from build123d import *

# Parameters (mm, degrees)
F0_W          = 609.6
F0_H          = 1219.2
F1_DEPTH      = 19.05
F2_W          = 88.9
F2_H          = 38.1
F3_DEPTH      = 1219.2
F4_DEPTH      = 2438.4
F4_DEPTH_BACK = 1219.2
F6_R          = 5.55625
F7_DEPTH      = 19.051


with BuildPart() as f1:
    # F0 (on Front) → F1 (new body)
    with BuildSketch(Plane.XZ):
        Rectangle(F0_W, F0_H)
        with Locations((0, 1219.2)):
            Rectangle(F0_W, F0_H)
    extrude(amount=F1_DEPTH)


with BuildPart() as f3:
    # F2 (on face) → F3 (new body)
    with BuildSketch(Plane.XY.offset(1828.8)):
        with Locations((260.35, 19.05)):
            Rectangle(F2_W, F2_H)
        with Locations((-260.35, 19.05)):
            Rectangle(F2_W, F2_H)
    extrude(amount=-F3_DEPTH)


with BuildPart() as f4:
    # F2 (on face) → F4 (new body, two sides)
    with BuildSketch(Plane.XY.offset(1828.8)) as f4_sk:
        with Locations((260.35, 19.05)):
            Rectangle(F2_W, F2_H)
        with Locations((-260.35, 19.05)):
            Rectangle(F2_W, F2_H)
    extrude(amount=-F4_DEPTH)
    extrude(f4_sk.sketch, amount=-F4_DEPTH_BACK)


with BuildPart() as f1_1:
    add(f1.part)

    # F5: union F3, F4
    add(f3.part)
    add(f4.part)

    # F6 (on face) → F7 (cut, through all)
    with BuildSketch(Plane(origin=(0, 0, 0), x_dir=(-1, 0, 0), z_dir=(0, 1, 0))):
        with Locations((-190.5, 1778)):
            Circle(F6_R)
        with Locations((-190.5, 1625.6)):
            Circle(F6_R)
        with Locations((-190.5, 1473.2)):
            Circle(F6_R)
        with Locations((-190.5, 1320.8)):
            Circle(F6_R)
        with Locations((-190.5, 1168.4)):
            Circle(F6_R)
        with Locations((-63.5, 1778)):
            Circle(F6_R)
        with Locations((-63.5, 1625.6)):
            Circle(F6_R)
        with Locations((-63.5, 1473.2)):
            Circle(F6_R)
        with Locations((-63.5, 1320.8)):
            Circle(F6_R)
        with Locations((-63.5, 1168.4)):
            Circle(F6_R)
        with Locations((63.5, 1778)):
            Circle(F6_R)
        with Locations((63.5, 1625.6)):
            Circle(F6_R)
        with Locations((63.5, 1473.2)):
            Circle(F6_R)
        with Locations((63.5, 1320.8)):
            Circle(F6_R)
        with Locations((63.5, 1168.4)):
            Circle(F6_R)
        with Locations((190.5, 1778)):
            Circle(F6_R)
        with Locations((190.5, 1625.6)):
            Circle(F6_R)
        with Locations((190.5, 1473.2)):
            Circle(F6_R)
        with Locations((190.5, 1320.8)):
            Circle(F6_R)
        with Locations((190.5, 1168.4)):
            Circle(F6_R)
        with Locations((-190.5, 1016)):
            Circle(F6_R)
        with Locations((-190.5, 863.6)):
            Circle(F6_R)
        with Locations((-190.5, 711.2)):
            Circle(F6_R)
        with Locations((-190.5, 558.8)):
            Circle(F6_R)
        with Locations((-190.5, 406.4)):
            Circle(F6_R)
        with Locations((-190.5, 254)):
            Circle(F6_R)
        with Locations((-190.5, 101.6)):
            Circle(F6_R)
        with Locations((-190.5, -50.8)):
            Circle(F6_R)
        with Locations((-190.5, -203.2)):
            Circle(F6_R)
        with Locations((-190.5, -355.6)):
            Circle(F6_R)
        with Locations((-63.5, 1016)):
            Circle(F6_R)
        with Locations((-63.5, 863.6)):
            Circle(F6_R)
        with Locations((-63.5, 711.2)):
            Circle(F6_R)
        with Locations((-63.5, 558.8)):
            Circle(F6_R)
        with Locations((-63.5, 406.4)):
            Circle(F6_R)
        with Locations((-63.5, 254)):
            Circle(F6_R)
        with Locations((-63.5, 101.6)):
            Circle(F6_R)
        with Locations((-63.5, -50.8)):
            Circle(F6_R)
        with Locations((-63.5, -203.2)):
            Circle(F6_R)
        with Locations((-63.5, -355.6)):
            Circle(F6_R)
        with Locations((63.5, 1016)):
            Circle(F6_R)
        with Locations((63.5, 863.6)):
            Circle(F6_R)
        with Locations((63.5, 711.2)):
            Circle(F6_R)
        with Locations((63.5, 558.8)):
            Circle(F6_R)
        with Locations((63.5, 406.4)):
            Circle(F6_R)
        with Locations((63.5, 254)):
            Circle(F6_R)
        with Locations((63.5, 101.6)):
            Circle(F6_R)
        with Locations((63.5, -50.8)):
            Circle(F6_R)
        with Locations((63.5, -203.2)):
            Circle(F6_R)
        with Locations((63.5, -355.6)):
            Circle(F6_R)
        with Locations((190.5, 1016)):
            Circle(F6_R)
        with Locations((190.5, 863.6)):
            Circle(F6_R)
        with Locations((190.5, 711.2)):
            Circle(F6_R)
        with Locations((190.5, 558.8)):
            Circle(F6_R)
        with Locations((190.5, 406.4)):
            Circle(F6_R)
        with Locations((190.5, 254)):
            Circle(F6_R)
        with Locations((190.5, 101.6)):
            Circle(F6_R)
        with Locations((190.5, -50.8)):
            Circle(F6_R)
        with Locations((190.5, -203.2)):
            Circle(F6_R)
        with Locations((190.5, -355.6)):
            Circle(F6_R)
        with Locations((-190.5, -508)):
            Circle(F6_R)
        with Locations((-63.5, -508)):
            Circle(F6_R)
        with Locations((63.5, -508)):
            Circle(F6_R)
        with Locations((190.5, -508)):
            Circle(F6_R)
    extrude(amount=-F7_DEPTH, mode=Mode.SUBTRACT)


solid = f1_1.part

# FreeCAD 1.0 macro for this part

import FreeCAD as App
import Part
import Sketcher

V = App.Vector
Q = App.Units.Quantity

doc = App.newDocument("Part")
body = doc.addObject("PartDesign::Body", "Body")

# Sketch on XZ plane
sketch1 = doc.addObject("Sketcher::SketchObject", "Sketch")
body.addObject(sketch1)
sketch1.AttachmentSupport = (doc.XZ_Plane, [""])
sketch1.MapMode = "FlatFace"
sketch1.addGeometry([
    Part.LineSegment(V(-305, -610, 0), V(305, -610, 0)),
    Part.LineSegment(V(305, -610, 0), V(305, 1829, 0)),
    Part.LineSegment(V(305, 1829, 0), V(-305, 1829, 0)),
    Part.LineSegment(V(-305, 1829, 0), V(-305, -610, 0)),
], False)
sketch1.addConstraint([
    Sketcher.Constraint("Coincident", 0, 2, 1, 1),
    Sketcher.Constraint("Coincident", 1, 2, 2, 1),
    Sketcher.Constraint("Coincident", 2, 2, 3, 1),
    Sketcher.Constraint("Coincident", 3, 2, 0, 1),
    Sketcher.Constraint("Horizontal", 0),
    Sketcher.Constraint("Vertical", 1),
    Sketcher.Constraint("Horizontal", 2),
    Sketcher.Constraint("Vertical", 3),
    Sketcher.Constraint("DistanceX", 0, 1, 0, 2, Q("24 in")),
    Sketcher.Constraint("DistanceY", 1, 1, 1, 2, Q("96 in")),
    Sketcher.Constraint("DistanceX", -1, 1, 0, 2, Q("12 in")),
    Sketcher.Constraint("DistanceY", 0, 2, -1, 1, Q("24 in")),
])
pad1 = doc.addObject("PartDesign::Pad", "Pad")
body.addObject(pad1)
pad1.Profile = sketch1
pad1.Length = Q("0.75 in")
body2 = doc.addObject("PartDesign::Body", "Body001")
body2.AllowCompound = True

# Sketch on XY plane
sketch2 = doc.addObject("Sketcher::SketchObject", "Sketch001")
body2.addObject(sketch2)
sketch2.AttachmentSupport = (doc.getObject("XY_Plane001"), [""])
sketch2.MapMode = "FlatFace"
sketch2.AttachmentOffset = App.Placement(V(0, 0, 72 * 25.4), App.Rotation())
sketch2.addGeometry([
    Part.LineSegment(V(216, 38, 0), V(216, 0, 0)),  # 0
    Part.LineSegment(V(216, 0, 0), V(305, 0, 0)),  # 1
    Part.LineSegment(V(305, 0, 0), V(305, 38, 0)),  # 2
    Part.LineSegment(V(305, 38, 0), V(216, 38, 0)),  # 3
    Part.LineSegment(V(-305, 38, 0), V(-305, 0, 0)),  # 4
    Part.LineSegment(V(-305, 0, 0), V(-216, 0, 0)),  # 5
    Part.LineSegment(V(-216, 0, 0), V(-216, 38, 0)),  # 6
    Part.LineSegment(V(-216, 38, 0), V(-305, 38, 0)),  # 7
], False)
sketch2.addConstraint([
    Sketcher.Constraint("Coincident", 0, 2, 1, 1),
    Sketcher.Constraint("Coincident", 1, 2, 2, 1),
    Sketcher.Constraint("Coincident", 2, 2, 3, 1),
    Sketcher.Constraint("Coincident", 3, 2, 0, 1),
    Sketcher.Constraint("Coincident", 4, 2, 5, 1),
    Sketcher.Constraint("Coincident", 5, 2, 6, 1),
    Sketcher.Constraint("Coincident", 6, 2, 7, 1),
    Sketcher.Constraint("Coincident", 7, 2, 4, 1),
    Sketcher.Constraint("Vertical", 0),
    Sketcher.Constraint("Horizontal", 1),
    Sketcher.Constraint("Vertical", 2),
    Sketcher.Constraint("Horizontal", 3),
    Sketcher.Constraint("Vertical", 4),
    Sketcher.Constraint("Horizontal", 5),
    Sketcher.Constraint("Vertical", 6),
    Sketcher.Constraint("Horizontal", 7),
    Sketcher.Constraint("Symmetric", 1, 2, 4, 2, -1, 1),
    Sketcher.Constraint("Symmetric", 0, 2, 5, 2, -2),
    Sketcher.Constraint("Horizontal", 3, 2, 6, 2),
    Sketcher.Constraint("DistanceX", 1, 1, 1, 2, Q("3.5 in")),
    Sketcher.Constraint("DistanceY", 0, 2, 0, 1, Q("1.5 in")),
    Sketcher.Constraint("DistanceX", -1, 1, 1, 2, Q("12 in")),
])
pad2 = doc.addObject("PartDesign::Pad", "Pad001")
body2.addObject(pad2)
pad2.Profile = sketch2
pad2.Length = Q("48 in")
pad2.Reversed = True
body3 = doc.addObject("PartDesign::Body", "Body002")
body3.AllowCompound = True

# Sketch on XY plane
sketch3 = doc.addObject("Sketcher::SketchObject", "Sketch002")
body3.addObject(sketch3)
sketch3.AttachmentSupport = (doc.getObject("XY_Plane002"), [""])
sketch3.MapMode = "FlatFace"
sketch3.AttachmentOffset = App.Placement(V(0, 0, 72 * 25.4), App.Rotation())
sketch3.addGeometry([
    Part.LineSegment(V(216, 38, 0), V(216, 0, 0)),  # 0
    Part.LineSegment(V(216, 0, 0), V(305, 0, 0)),  # 1
    Part.LineSegment(V(305, 0, 0), V(305, 38, 0)),  # 2
    Part.LineSegment(V(305, 38, 0), V(216, 38, 0)),  # 3
    Part.LineSegment(V(-305, 38, 0), V(-305, 0, 0)),  # 4
    Part.LineSegment(V(-305, 0, 0), V(-216, 0, 0)),  # 5
    Part.LineSegment(V(-216, 0, 0), V(-216, 38, 0)),  # 6
    Part.LineSegment(V(-216, 38, 0), V(-305, 38, 0)),  # 7
], False)
sketch3.addConstraint([
    Sketcher.Constraint("Coincident", 0, 2, 1, 1),
    Sketcher.Constraint("Coincident", 1, 2, 2, 1),
    Sketcher.Constraint("Coincident", 2, 2, 3, 1),
    Sketcher.Constraint("Coincident", 3, 2, 0, 1),
    Sketcher.Constraint("Coincident", 4, 2, 5, 1),
    Sketcher.Constraint("Coincident", 5, 2, 6, 1),
    Sketcher.Constraint("Coincident", 6, 2, 7, 1),
    Sketcher.Constraint("Coincident", 7, 2, 4, 1),
    Sketcher.Constraint("Vertical", 0),
    Sketcher.Constraint("Horizontal", 1),
    Sketcher.Constraint("Vertical", 2),
    Sketcher.Constraint("Horizontal", 3),
    Sketcher.Constraint("Vertical", 4),
    Sketcher.Constraint("Horizontal", 5),
    Sketcher.Constraint("Vertical", 6),
    Sketcher.Constraint("Horizontal", 7),
    Sketcher.Constraint("Symmetric", 1, 2, 4, 2, -1, 1),
    Sketcher.Constraint("Symmetric", 0, 2, 5, 2, -2),
    Sketcher.Constraint("Horizontal", 3, 2, 6, 2),
    Sketcher.Constraint("DistanceX", 1, 1, 1, 2, Q("3.5 in")),
    Sketcher.Constraint("DistanceY", 0, 2, 0, 1, Q("1.5 in")),
    Sketcher.Constraint("DistanceX", -1, 1, 1, 2, Q("12 in")),
])
pad3 = doc.addObject("PartDesign::Pad", "Pad002")
body3.addObject(pad3)
pad3.Profile = sketch3
pad3.Length = Q("96 in")
pad3.Reversed = True
pad4 = doc.addObject("PartDesign::Pad", "Pad003")
body3.addObject(pad4)
pad4.Profile = sketch3
pad4.Length = Q("48 in")
pad4.Reversed = True
doc.recompute()

boolean = doc.addObject("PartDesign::Boolean", "Boolean")
body.addObject(boolean)
boolean.Type = "Fuse"
boolean.addObjects([body2])
doc.recompute()

boolean2 = doc.addObject("PartDesign::Boolean", "Boolean001")
body.addObject(boolean2)
boolean2.Type = "Fuse"
boolean2.addObjects([body3])

# Sketch on XZ plane
sketch4 = doc.addObject("Sketcher::SketchObject", "Sketch003")
body.addObject(sketch4)
sketch4.AttachmentSupport = (doc.XZ_Plane, [""])
sketch4.MapMode = "FlatFace"
sketch4.addGeometry([
    Part.Circle(V(190, 1778, 0), V(0, 0, 1), 6),  # 0
    Part.Circle(V(190, 1626, 0), V(0, 0, 1), 6),  # 1
    Part.Circle(V(190, 1473, 0), V(0, 0, 1), 6),  # 2
    Part.Circle(V(190, 1321, 0), V(0, 0, 1), 6),  # 3
    Part.Circle(V(190, 1168, 0), V(0, 0, 1), 6),  # 4
    Part.Circle(V(64, 1778, 0), V(0, 0, 1), 6),  # 5
    Part.Circle(V(64, 1626, 0), V(0, 0, 1), 6),  # 6
    Part.Circle(V(64, 1473, 0), V(0, 0, 1), 6),  # 7
    Part.Circle(V(64, 1321, 0), V(0, 0, 1), 6),  # 8
    Part.Circle(V(64, 1168, 0), V(0, 0, 1), 6),  # 9
    Part.Circle(V(-64, 1778, 0), V(0, 0, 1), 6),  # 10
    Part.Circle(V(-64, 1626, 0), V(0, 0, 1), 6),  # 11
    Part.Circle(V(-64, 1473, 0), V(0, 0, 1), 6),  # 12
    Part.Circle(V(-64, 1321, 0), V(0, 0, 1), 6),  # 13
    Part.Circle(V(-64, 1168, 0), V(0, 0, 1), 6),  # 14
    Part.Circle(V(-190, 1778, 0), V(0, 0, 1), 6),  # 15
    Part.Circle(V(-190, 1626, 0), V(0, 0, 1), 6),  # 16
    Part.Circle(V(-190, 1473, 0), V(0, 0, 1), 6),  # 17
    Part.Circle(V(-190, 1321, 0), V(0, 0, 1), 6),  # 18
    Part.Circle(V(-190, 1168, 0), V(0, 0, 1), 6),  # 19
    Part.Circle(V(190, 1016, 0), V(0, 0, 1), 6),  # 20
    Part.Circle(V(190, 864, 0), V(0, 0, 1), 6),  # 21
    Part.Circle(V(190, 711, 0), V(0, 0, 1), 6),  # 22
    Part.Circle(V(190, 559, 0), V(0, 0, 1), 6),  # 23
    Part.Circle(V(190, 406, 0), V(0, 0, 1), 6),  # 24
    Part.Circle(V(190, 254, 0), V(0, 0, 1), 6),  # 25
    Part.Circle(V(190, 102, 0), V(0, 0, 1), 6),  # 26
    Part.Circle(V(190, -51, 0), V(0, 0, 1), 6),  # 27
    Part.Circle(V(190, -203, 0), V(0, 0, 1), 6),  # 28
    Part.Circle(V(190, -356, 0), V(0, 0, 1), 6),  # 29
    Part.Circle(V(64, 1016, 0), V(0, 0, 1), 6),  # 30
    Part.Circle(V(64, 864, 0), V(0, 0, 1), 6),  # 31
    Part.Circle(V(64, 711, 0), V(0, 0, 1), 6),  # 32
    Part.Circle(V(64, 559, 0), V(0, 0, 1), 6),  # 33
    Part.Circle(V(64, 406, 0), V(0, 0, 1), 6),  # 34
    Part.Circle(V(64, 254, 0), V(0, 0, 1), 6),  # 35
    Part.Circle(V(64, 102, 0), V(0, 0, 1), 6),  # 36
    Part.Circle(V(64, -51, 0), V(0, 0, 1), 6),  # 37
    Part.Circle(V(64, -203, 0), V(0, 0, 1), 6),  # 38
    Part.Circle(V(64, -356, 0), V(0, 0, 1), 6),  # 39
    Part.Circle(V(-64, 1016, 0), V(0, 0, 1), 6),  # 40
    Part.Circle(V(-64, 864, 0), V(0, 0, 1), 6),  # 41
    Part.Circle(V(-64, 711, 0), V(0, 0, 1), 6),  # 42
    Part.Circle(V(-64, 559, 0), V(0, 0, 1), 6),  # 43
    Part.Circle(V(-64, 406, 0), V(0, 0, 1), 6),  # 44
    Part.Circle(V(-64, 254, 0), V(0, 0, 1), 6),  # 45
    Part.Circle(V(-64, 102, 0), V(0, 0, 1), 6),  # 46
    Part.Circle(V(-64, -51, 0), V(0, 0, 1), 6),  # 47
    Part.Circle(V(-64, -203, 0), V(0, 0, 1), 6),  # 48
    Part.Circle(V(-64, -356, 0), V(0, 0, 1), 6),  # 49
    Part.Circle(V(-190, 1016, 0), V(0, 0, 1), 6),  # 50
    Part.Circle(V(-190, 864, 0), V(0, 0, 1), 6),  # 51
    Part.Circle(V(-190, 711, 0), V(0, 0, 1), 6),  # 52
    Part.Circle(V(-190, 559, 0), V(0, 0, 1), 6),  # 53
    Part.Circle(V(-190, 406, 0), V(0, 0, 1), 6),  # 54
    Part.Circle(V(-190, 254, 0), V(0, 0, 1), 6),  # 55
    Part.Circle(V(-190, 102, 0), V(0, 0, 1), 6),  # 56
    Part.Circle(V(-190, -51, 0), V(0, 0, 1), 6),  # 57
    Part.Circle(V(-190, -203, 0), V(0, 0, 1), 6),  # 58
    Part.Circle(V(-190, -356, 0), V(0, 0, 1), 6),  # 59
    Part.Circle(V(190, -508, 0), V(0, 0, 1), 6),  # 60
    Part.Circle(V(64, -508, 0), V(0, 0, 1), 6),  # 61
    Part.Circle(V(-64, -508, 0), V(0, 0, 1), 6),  # 62
    Part.Circle(V(-190, -508, 0), V(0, 0, 1), 6),  # 63
], False)
sketch4.addConstraint([
    Sketcher.Constraint("Equal", 0, 1),
    Sketcher.Constraint("Equal", 1, 2),
    Sketcher.Constraint("Equal", 2, 3),
    Sketcher.Constraint("Equal", 3, 4),
    Sketcher.Constraint("Equal", 4, 5),
    Sketcher.Constraint("Equal", 5, 6),
    Sketcher.Constraint("Equal", 6, 7),
    Sketcher.Constraint("Equal", 7, 8),
    Sketcher.Constraint("Equal", 8, 9),
    Sketcher.Constraint("Equal", 9, 10),
    Sketcher.Constraint("Equal", 10, 11),
    Sketcher.Constraint("Equal", 11, 12),
    Sketcher.Constraint("Equal", 12, 13),
    Sketcher.Constraint("Equal", 13, 14),
    Sketcher.Constraint("Equal", 14, 15),
    Sketcher.Constraint("Equal", 15, 16),
    Sketcher.Constraint("Equal", 16, 17),
    Sketcher.Constraint("Equal", 17, 18),
    Sketcher.Constraint("Equal", 18, 19),
    Sketcher.Constraint("Equal", 19, 20),
    Sketcher.Constraint("Equal", 20, 21),
    Sketcher.Constraint("Equal", 21, 22),
    Sketcher.Constraint("Equal", 22, 23),
    Sketcher.Constraint("Equal", 23, 24),
    Sketcher.Constraint("Equal", 24, 25),
    Sketcher.Constraint("Equal", 25, 26),
    Sketcher.Constraint("Equal", 26, 27),
    Sketcher.Constraint("Equal", 27, 28),
    Sketcher.Constraint("Equal", 28, 29),
    Sketcher.Constraint("Equal", 29, 30),
    Sketcher.Constraint("Equal", 30, 31),
    Sketcher.Constraint("Equal", 31, 32),
    Sketcher.Constraint("Equal", 32, 33),
    Sketcher.Constraint("Equal", 33, 34),
    Sketcher.Constraint("Equal", 34, 35),
    Sketcher.Constraint("Equal", 35, 36),
    Sketcher.Constraint("Equal", 36, 37),
    Sketcher.Constraint("Equal", 37, 38),
    Sketcher.Constraint("Equal", 38, 39),
    Sketcher.Constraint("Equal", 39, 40),
    Sketcher.Constraint("Equal", 40, 41),
    Sketcher.Constraint("Equal", 41, 42),
    Sketcher.Constraint("Equal", 42, 43),
    Sketcher.Constraint("Equal", 43, 44),
    Sketcher.Constraint("Equal", 44, 45),
    Sketcher.Constraint("Equal", 45, 46),
    Sketcher.Constraint("Equal", 46, 47),
    Sketcher.Constraint("Equal", 47, 48),
    Sketcher.Constraint("Equal", 48, 49),
    Sketcher.Constraint("Equal", 49, 50),
    Sketcher.Constraint("Equal", 50, 51),
    Sketcher.Constraint("Equal", 51, 52),
    Sketcher.Constraint("Equal", 52, 53),
    Sketcher.Constraint("Equal", 53, 54),
    Sketcher.Constraint("Equal", 54, 55),
    Sketcher.Constraint("Equal", 55, 56),
    Sketcher.Constraint("Equal", 56, 57),
    Sketcher.Constraint("Equal", 57, 58),
    Sketcher.Constraint("Equal", 58, 59),
    Sketcher.Constraint("Equal", 59, 60),
    Sketcher.Constraint("Equal", 60, 61),
    Sketcher.Constraint("Equal", 61, 62),
    Sketcher.Constraint("Equal", 62, 63),
    Sketcher.Constraint("Symmetric", 5, 3, 10, 3, -2),
    Sketcher.Constraint("Symmetric", 6, 3, 11, 3, -2),
    Sketcher.Constraint("Symmetric", 7, 3, 12, 3, -2),
    Sketcher.Constraint("Symmetric", 8, 3, 13, 3, -2),
    Sketcher.Constraint("Symmetric", 9, 3, 14, 3, -2),
    Sketcher.Constraint("Symmetric", 0, 3, 15, 3, -2),
    Sketcher.Constraint("Symmetric", 1, 3, 16, 3, -2),
    Sketcher.Constraint("Symmetric", 2, 3, 17, 3, -2),
    Sketcher.Constraint("Symmetric", 3, 3, 18, 3, -2),
    Sketcher.Constraint("Symmetric", 4, 3, 19, 3, -2),
    Sketcher.Constraint("Symmetric", 30, 3, 40, 3, -2),
    Sketcher.Constraint("Symmetric", 31, 3, 41, 3, -2),
    Sketcher.Constraint("Symmetric", 32, 3, 42, 3, -2),
    Sketcher.Constraint("Symmetric", 33, 3, 43, 3, -2),
    Sketcher.Constraint("Symmetric", 34, 3, 44, 3, -2),
    Sketcher.Constraint("Symmetric", 35, 3, 45, 3, -2),
    Sketcher.Constraint("Symmetric", 36, 3, 46, 3, -2),
    Sketcher.Constraint("Symmetric", 37, 3, 47, 3, -2),
    Sketcher.Constraint("Symmetric", 38, 3, 48, 3, -2),
    Sketcher.Constraint("Symmetric", 39, 3, 49, 3, -2),
    Sketcher.Constraint("Symmetric", 20, 3, 50, 3, -2),
    Sketcher.Constraint("Symmetric", 21, 3, 51, 3, -2),
    Sketcher.Constraint("Symmetric", 22, 3, 52, 3, -2),
    Sketcher.Constraint("Symmetric", 23, 3, 53, 3, -2),
    Sketcher.Constraint("Symmetric", 24, 3, 54, 3, -2),
    Sketcher.Constraint("Symmetric", 25, 3, 55, 3, -2),
    Sketcher.Constraint("Symmetric", 26, 3, 56, 3, -2),
    Sketcher.Constraint("Symmetric", 27, 3, 57, 3, -2),
    Sketcher.Constraint("Symmetric", 28, 3, 58, 3, -2),
    Sketcher.Constraint("Symmetric", 29, 3, 59, 3, -2),
    Sketcher.Constraint("Symmetric", 61, 3, 62, 3, -2),
    Sketcher.Constraint("Symmetric", 60, 3, 63, 3, -2),
    Sketcher.Constraint("Horizontal", 0, 3, 5, 3),
    Sketcher.Constraint("Horizontal", 1, 3, 6, 3),
    Sketcher.Constraint("Horizontal", 2, 3, 7, 3),
    Sketcher.Constraint("Horizontal", 3, 3, 8, 3),
    Sketcher.Constraint("Horizontal", 4, 3, 9, 3),
    Sketcher.Constraint("Horizontal", 20, 3, 30, 3),
    Sketcher.Constraint("Horizontal", 21, 3, 31, 3),
    Sketcher.Constraint("Horizontal", 22, 3, 32, 3),
    Sketcher.Constraint("Horizontal", 23, 3, 33, 3),
    Sketcher.Constraint("Horizontal", 24, 3, 34, 3),
    Sketcher.Constraint("Horizontal", 25, 3, 35, 3),
    Sketcher.Constraint("Horizontal", 26, 3, 36, 3),
    Sketcher.Constraint("Horizontal", 27, 3, 37, 3),
    Sketcher.Constraint("Horizontal", 28, 3, 38, 3),
    Sketcher.Constraint("Horizontal", 29, 3, 39, 3),
    Sketcher.Constraint("Horizontal", 60, 3, 61, 3),
    Sketcher.Constraint("Vertical", 0, 3, 1, 3),
    Sketcher.Constraint("Vertical", 1, 3, 2, 3),
    Sketcher.Constraint("Vertical", 2, 3, 3, 3),
    Sketcher.Constraint("Vertical", 3, 3, 4, 3),
    Sketcher.Constraint("Vertical", 5, 3, 6, 3),
    Sketcher.Constraint("Vertical", 6, 3, 7, 3),
    Sketcher.Constraint("Vertical", 7, 3, 8, 3),
    Sketcher.Constraint("Vertical", 8, 3, 9, 3),
    Sketcher.Constraint("Vertical", 4, 3, 20, 3),
    Sketcher.Constraint("Vertical", 20, 3, 21, 3),
    Sketcher.Constraint("Vertical", 21, 3, 22, 3),
    Sketcher.Constraint("Vertical", 22, 3, 23, 3),
    Sketcher.Constraint("Vertical", 23, 3, 24, 3),
    Sketcher.Constraint("Vertical", 24, 3, 25, 3),
    Sketcher.Constraint("Vertical", 25, 3, 26, 3),
    Sketcher.Constraint("Vertical", 26, 3, 27, 3),
    Sketcher.Constraint("Vertical", 27, 3, 28, 3),
    Sketcher.Constraint("Vertical", 28, 3, 29, 3),
    Sketcher.Constraint("Vertical", 9, 3, 30, 3),
    Sketcher.Constraint("Vertical", 30, 3, 31, 3),
    Sketcher.Constraint("Vertical", 31, 3, 32, 3),
    Sketcher.Constraint("Vertical", 32, 3, 33, 3),
    Sketcher.Constraint("Vertical", 33, 3, 34, 3),
    Sketcher.Constraint("Vertical", 34, 3, 35, 3),
    Sketcher.Constraint("Vertical", 35, 3, 36, 3),
    Sketcher.Constraint("Vertical", 36, 3, 37, 3),
    Sketcher.Constraint("Vertical", 37, 3, 38, 3),
    Sketcher.Constraint("Vertical", 38, 3, 39, 3),
    Sketcher.Constraint("Vertical", 29, 3, 60, 3),
    Sketcher.Constraint("Vertical", 39, 3, 61, 3),
    Sketcher.Constraint("Diameter", 0, Q("0.4375 in")),
    Sketcher.Constraint("DistanceY", -1, 1, 0, 3, Q("70 in")),
    Sketcher.Constraint("DistanceY", -1, 1, 1, 3, Q("64 in")),
    Sketcher.Constraint("DistanceY", -1, 1, 2, 3, Q("58 in")),
    Sketcher.Constraint("DistanceY", -1, 1, 3, 3, Q("52 in")),
    Sketcher.Constraint("DistanceY", -1, 1, 4, 3, Q("46 in")),
    Sketcher.Constraint("DistanceY", -1, 1, 20, 3, Q("40 in")),
    Sketcher.Constraint("DistanceY", -1, 1, 21, 3, Q("34 in")),
    Sketcher.Constraint("DistanceY", -1, 1, 22, 3, Q("28 in")),
    Sketcher.Constraint("DistanceY", -1, 1, 23, 3, Q("22 in")),
    Sketcher.Constraint("DistanceY", -1, 1, 24, 3, Q("16 in")),
    Sketcher.Constraint("DistanceY", -1, 1, 25, 3, Q("10 in")),
    Sketcher.Constraint("DistanceY", -1, 1, 26, 3, Q("4 in")),
    Sketcher.Constraint("DistanceY", 27, 3, -1, 1, Q("2 in")),
    Sketcher.Constraint("DistanceY", 28, 3, -1, 1, Q("8 in")),
    Sketcher.Constraint("DistanceY", 29, 3, -1, 1, Q("14 in")),
    Sketcher.Constraint("DistanceY", 60, 3, -1, 1, Q("20 in")),
    Sketcher.Constraint("DistanceX", -1, 1, 0, 3, Q("7.5 in")),
    Sketcher.Constraint("DistanceX", -1, 1, 5, 3, Q("2.5 in")),
])
pocket1 = doc.addObject("PartDesign::Pocket", "Pocket")
body.addObject(pocket1)
pocket1.Profile = sketch4
pocket1.Type = "ThroughAll"
pocket1.Reversed = True

doc.recompute()
